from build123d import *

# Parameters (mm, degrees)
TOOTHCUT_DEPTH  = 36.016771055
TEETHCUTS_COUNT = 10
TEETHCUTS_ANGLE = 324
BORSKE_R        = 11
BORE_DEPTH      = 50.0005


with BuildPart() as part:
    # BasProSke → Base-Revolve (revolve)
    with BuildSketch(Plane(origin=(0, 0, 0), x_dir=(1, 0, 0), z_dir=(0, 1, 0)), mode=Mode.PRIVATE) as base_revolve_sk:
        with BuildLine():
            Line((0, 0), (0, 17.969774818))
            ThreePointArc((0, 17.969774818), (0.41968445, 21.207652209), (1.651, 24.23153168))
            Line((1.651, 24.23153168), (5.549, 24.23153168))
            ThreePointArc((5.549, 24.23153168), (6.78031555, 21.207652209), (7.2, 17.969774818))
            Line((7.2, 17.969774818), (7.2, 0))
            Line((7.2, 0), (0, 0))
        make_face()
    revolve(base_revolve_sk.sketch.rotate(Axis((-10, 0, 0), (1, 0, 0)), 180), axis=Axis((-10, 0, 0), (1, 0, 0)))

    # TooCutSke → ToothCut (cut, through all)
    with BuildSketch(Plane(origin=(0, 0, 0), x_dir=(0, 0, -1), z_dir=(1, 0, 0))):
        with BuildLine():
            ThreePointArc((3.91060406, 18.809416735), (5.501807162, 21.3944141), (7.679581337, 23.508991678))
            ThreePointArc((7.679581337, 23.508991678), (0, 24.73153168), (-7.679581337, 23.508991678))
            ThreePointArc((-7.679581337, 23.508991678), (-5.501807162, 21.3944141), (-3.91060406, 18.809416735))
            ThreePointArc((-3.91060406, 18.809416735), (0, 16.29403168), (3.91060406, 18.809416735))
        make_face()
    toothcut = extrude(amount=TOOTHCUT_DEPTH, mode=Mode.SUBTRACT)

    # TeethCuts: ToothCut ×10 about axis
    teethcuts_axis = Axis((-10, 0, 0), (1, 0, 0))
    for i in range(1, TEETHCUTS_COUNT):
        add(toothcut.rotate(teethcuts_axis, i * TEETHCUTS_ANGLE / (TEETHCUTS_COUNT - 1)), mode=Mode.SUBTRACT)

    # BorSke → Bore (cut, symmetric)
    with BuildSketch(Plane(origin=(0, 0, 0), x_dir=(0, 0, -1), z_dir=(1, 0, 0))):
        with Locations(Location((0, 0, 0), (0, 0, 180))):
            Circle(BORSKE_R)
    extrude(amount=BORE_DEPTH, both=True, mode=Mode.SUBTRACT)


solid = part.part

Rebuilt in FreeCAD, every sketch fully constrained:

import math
import FreeCAD as App
import Part
import Sketcher
Q = App.Units.Quantity

doc = App.newDocument("Part")
body = doc.addObject("PartDesign::Body", "Body")

sketch1 = doc.addObject("Sketcher::SketchObject", "Sketch")
body.addObject(sketch1)
sketch1.AttachmentSupport = (doc.XZ_Plane, [""])
sketch1.MapMode = "FlatFace"
sketch1.addGeometry([
    Part.LineSegment(App.Vector(0, -18, 0), App.Vector(0, 0, 0)),
    Part.LineSegment(App.Vector(0, 0, 0), App.Vector(7.2, 0, 0)),
    Part.LineSegment(App.Vector(7.2, 0, 0), App.Vector(7.2, -18, 0)),
    Part.ArcOfCircle(Part.Circle(App.Vector(-5.5, -18, 0), App.Vector(0, 0, 1), 12.7), math.radians(-30), math.radians(0)),
    Part.LineSegment(App.Vector(5.5, -24.2, 0), App.Vector(1.7, -24.2, 0)),
    Part.ArcOfCircle(Part.Circle(App.Vector(12.7, -18, 0), App.Vector(0, 0, 1), 12.7), math.radians(180), math.radians(210)),
], False)
sketch1.addConstraint([
    Sketcher.Constraint("Coincident", 0, 2, 1, 1),
    Sketcher.Constraint("Coincident", 1, 2, 2, 1),
    Sketcher.Constraint("Tangent", 2, 2, 3, 2),
    Sketcher.Constraint("Coincident", 3, 1, 4, 1),
    Sketcher.Constraint("Coincident", 4, 2, 5, 2),
    Sketcher.Constraint("Tangent", 5, 1, 0, 1),
    Sketcher.Constraint("Vertical", 0),
    Sketcher.Constraint("Horizontal", 1),
    Sketcher.Constraint("Vertical", 2),
    Sketcher.Constraint("Horizontal", 4),
    Sketcher.Constraint("Coincident", 0, 2, -1, 1),
    Sketcher.Constraint("Equal", 3, 5),
    Sketcher.Constraint("Horizontal", 3, 3, 5, 3),
    Sketcher.Constraint("Radius", 3, Q("12.7 mm")),
    Sketcher.Constraint("DistanceX", 1, 1, 1, 2, Q("7.2 mm")),
    Sketcher.Constraint("DistanceX", 4, 2, 4, 1, Q("3.898 mm")),
    Sketcher.Constraint("DistanceY", 0, 1, 0, 2, Q("17.969775 mm")),
])
revolution = doc.addObject("PartDesign::Revolution", "Revolution")
body.addObject(revolution)
revolution.Profile = sketch1
revolution.ReferenceAxis = (sketch1, ["H_Axis"])
revolution.Angle = 360

sketch2 = doc.addObject("Sketcher::SketchObject", "Sketch001")
body.addObject(sketch2)
sketch2.AttachmentSupport = (doc.YZ_Plane, [""])
sketch2.MapMode = "FlatFace"
sketch2.addGeometry([
    Part.ArcOfCircle(Part.Circle(App.Vector(13.7, -15.1, 0), App.Vector(0, 0, 1), 12.3), math.radians(37), math.radians(66)),
    Part.ArcOfCircle(Part.Circle(App.Vector(0, 0, 0), App.Vector(0, 0, 1), 24.7), math.radians(-18), math.radians(18)),
    Part.ArcOfCircle(Part.Circle(App.Vector(13.7, 15.1, 0), App.Vector(0, 0, 1), 12.3), math.radians(-66), math.radians(-37)),
    Part.ArcOfCircle(Part.Circle(App.Vector(20.6, 0, 0), App.Vector(0, 0, 1), 4.3), math.radians(115), math.radians(245)),
], False)
sketch2.addConstraint([
    Sketcher.Constraint("Coincident", 0, 1, 1, 1),
    Sketcher.Constraint("Coincident", 1, 2, 2, 2),
    Sketcher.Constraint("Tangent", 2, 1, 3, 1),
    Sketcher.Constraint("Tangent", 3, 2, 0, 2),
    Sketcher.Constraint("Coincident", 1, 3, -1, 1),
    Sketcher.Constraint("Equal", 0, 2),
    Sketcher.Constraint("Symmetric", 0, 3, 2, 3, -1),
    Sketcher.Constraint("Radius", 0, Q("12.2544 mm")),
    Sketcher.Constraint("Radius", 1, Q("24.731532 mm")),
    Sketcher.Constraint("Radius", 3, Q("4.29755 mm")),
    Sketcher.Constraint("DistanceX", -1, 1, 0, 3, Q("13.7276 mm")),
    Sketcher.Constraint("DistanceX", -1, 1, 3, 3, Q("20.591582 mm")),
])
pocket1 = doc.addObject("PartDesign::Pocket", "Pocket")
body.addObject(pocket1)
pocket1.Profile = sketch2
pocket1.Type = "ThroughAll"
pocket1.Reversed = True
doc.recompute()

polarpattern = doc.addObject("PartDesign::PolarPattern", "PolarPattern")
body.addObject(polarpattern)
polarpattern.Originals = [pocket1]
polarpattern.Axis = (doc.X_Axis, [""])
polarpattern.Angle = 360
polarpattern.Occurrences = 10
body.Tip = polarpattern

sketch3 = doc.addObject("Sketcher::SketchObject", "Sketch002")
body.addObject(sketch3)
sketch3.AttachmentSupport = (doc.YZ_Plane, [""])
sketch3.MapMode = "FlatFace"
sketch3.addGeometry(Part.Circle(App.Vector(0, 0, 0), App.Vector(0, 0, 1), 11), False)
sketch3.addConstraint([
    Sketcher.Constraint("Coincident", 0, 3, -1, 1),
    Sketcher.Constraint("Diameter", 0, Q("22 mm")),
])
pocket2 = doc.addObject("PartDesign::Pocket", "Pocket001")
body.addObject(pocket2)
pocket2.Profile = sketch3
pocket2.Length = 100.001
pocket2.Midplane = True

doc.recompute()
